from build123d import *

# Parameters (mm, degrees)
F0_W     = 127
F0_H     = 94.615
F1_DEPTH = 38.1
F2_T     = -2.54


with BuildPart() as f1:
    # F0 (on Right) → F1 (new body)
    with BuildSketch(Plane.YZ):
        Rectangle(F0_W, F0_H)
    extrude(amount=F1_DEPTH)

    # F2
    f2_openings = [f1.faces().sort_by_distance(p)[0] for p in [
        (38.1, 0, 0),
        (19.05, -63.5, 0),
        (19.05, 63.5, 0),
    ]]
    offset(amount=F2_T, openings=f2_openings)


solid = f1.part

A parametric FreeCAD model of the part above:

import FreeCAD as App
import Part
import Sketcher
Q = App.Units.Quantity


def faces_at(feature, points):
    """Names of the faces that lie closest to the given points."""
    faces = feature.Shape.Faces
    near = lambda p: min(range(len(faces)), key=lambda i: faces[i].distToShape(Part.Vertex(*p))[0])
    return sorted({f"Face{near(p) + 1}" for p in points})


def add_polygon(sketch, points):
    """Adds a closed chain of lines whose ends are joined by coincident constraints."""
    first, n = sketch.GeometryCount, len(points)
    for a, b in zip(points, points[1:] + points[:1]):
        sketch.addGeometry(Part.LineSegment(App.Vector(*a, 0), App.Vector(*b, 0)), False)
    for i in range(n):
        sketch.addConstraint(Sketcher.Constraint("Coincident", first + i, 2, first + (i + 1) % n, 1))

doc = App.newDocument("Part")
body = doc.addObject("PartDesign::Body", "Body")

sketch1 = body.newObject("Sketcher::SketchObject", "Sketch")
sketch1.AttachmentSupport = (doc.getObject("YZ_Plane"), [""])
sketch1.MapMode = "FlatFace"
add_polygon(sketch1, [(-64, 47), (-64, -47), (64, -47), (64, 47)])
sketch1.addConstraint(Sketcher.Constraint("Vertical", 0))
sketch1.addConstraint(Sketcher.Constraint("Horizontal", 1))
sketch1.addConstraint(Sketcher.Constraint("Vertical", 2))
sketch1.addConstraint(Sketcher.Constraint("Horizontal", 3))
sketch1.addConstraint(Sketcher.Constraint("Symmetric", 0, 2, 2, 2, -1, 1))
sketch1.addConstraint(Sketcher.Constraint("DistanceX", 1, 1, 1, 2, Q("5 in")))
sketch1.addConstraint(Sketcher.Constraint("DistanceY", 0, 2, 0, 1, Q("3.725 in")))
pad1 = body.newObject("PartDesign::Pad", "Pad")
pad1.Profile = sketch1
pad1.Length = Q("1.5 in")
doc.recompute()

thickness = body.newObject("PartDesign::Thickness", "Thickness")
thickness.Base = (pad1, faces_at(pad1, [(38.1, 0, 0), (19.05, -63.5, 0), (19.05, 63.5, 0)]))
thickness.Value = Q("0.1 in")
thickness.Reversed = True
thickness.Join = "Arc"

doc.recompute()
